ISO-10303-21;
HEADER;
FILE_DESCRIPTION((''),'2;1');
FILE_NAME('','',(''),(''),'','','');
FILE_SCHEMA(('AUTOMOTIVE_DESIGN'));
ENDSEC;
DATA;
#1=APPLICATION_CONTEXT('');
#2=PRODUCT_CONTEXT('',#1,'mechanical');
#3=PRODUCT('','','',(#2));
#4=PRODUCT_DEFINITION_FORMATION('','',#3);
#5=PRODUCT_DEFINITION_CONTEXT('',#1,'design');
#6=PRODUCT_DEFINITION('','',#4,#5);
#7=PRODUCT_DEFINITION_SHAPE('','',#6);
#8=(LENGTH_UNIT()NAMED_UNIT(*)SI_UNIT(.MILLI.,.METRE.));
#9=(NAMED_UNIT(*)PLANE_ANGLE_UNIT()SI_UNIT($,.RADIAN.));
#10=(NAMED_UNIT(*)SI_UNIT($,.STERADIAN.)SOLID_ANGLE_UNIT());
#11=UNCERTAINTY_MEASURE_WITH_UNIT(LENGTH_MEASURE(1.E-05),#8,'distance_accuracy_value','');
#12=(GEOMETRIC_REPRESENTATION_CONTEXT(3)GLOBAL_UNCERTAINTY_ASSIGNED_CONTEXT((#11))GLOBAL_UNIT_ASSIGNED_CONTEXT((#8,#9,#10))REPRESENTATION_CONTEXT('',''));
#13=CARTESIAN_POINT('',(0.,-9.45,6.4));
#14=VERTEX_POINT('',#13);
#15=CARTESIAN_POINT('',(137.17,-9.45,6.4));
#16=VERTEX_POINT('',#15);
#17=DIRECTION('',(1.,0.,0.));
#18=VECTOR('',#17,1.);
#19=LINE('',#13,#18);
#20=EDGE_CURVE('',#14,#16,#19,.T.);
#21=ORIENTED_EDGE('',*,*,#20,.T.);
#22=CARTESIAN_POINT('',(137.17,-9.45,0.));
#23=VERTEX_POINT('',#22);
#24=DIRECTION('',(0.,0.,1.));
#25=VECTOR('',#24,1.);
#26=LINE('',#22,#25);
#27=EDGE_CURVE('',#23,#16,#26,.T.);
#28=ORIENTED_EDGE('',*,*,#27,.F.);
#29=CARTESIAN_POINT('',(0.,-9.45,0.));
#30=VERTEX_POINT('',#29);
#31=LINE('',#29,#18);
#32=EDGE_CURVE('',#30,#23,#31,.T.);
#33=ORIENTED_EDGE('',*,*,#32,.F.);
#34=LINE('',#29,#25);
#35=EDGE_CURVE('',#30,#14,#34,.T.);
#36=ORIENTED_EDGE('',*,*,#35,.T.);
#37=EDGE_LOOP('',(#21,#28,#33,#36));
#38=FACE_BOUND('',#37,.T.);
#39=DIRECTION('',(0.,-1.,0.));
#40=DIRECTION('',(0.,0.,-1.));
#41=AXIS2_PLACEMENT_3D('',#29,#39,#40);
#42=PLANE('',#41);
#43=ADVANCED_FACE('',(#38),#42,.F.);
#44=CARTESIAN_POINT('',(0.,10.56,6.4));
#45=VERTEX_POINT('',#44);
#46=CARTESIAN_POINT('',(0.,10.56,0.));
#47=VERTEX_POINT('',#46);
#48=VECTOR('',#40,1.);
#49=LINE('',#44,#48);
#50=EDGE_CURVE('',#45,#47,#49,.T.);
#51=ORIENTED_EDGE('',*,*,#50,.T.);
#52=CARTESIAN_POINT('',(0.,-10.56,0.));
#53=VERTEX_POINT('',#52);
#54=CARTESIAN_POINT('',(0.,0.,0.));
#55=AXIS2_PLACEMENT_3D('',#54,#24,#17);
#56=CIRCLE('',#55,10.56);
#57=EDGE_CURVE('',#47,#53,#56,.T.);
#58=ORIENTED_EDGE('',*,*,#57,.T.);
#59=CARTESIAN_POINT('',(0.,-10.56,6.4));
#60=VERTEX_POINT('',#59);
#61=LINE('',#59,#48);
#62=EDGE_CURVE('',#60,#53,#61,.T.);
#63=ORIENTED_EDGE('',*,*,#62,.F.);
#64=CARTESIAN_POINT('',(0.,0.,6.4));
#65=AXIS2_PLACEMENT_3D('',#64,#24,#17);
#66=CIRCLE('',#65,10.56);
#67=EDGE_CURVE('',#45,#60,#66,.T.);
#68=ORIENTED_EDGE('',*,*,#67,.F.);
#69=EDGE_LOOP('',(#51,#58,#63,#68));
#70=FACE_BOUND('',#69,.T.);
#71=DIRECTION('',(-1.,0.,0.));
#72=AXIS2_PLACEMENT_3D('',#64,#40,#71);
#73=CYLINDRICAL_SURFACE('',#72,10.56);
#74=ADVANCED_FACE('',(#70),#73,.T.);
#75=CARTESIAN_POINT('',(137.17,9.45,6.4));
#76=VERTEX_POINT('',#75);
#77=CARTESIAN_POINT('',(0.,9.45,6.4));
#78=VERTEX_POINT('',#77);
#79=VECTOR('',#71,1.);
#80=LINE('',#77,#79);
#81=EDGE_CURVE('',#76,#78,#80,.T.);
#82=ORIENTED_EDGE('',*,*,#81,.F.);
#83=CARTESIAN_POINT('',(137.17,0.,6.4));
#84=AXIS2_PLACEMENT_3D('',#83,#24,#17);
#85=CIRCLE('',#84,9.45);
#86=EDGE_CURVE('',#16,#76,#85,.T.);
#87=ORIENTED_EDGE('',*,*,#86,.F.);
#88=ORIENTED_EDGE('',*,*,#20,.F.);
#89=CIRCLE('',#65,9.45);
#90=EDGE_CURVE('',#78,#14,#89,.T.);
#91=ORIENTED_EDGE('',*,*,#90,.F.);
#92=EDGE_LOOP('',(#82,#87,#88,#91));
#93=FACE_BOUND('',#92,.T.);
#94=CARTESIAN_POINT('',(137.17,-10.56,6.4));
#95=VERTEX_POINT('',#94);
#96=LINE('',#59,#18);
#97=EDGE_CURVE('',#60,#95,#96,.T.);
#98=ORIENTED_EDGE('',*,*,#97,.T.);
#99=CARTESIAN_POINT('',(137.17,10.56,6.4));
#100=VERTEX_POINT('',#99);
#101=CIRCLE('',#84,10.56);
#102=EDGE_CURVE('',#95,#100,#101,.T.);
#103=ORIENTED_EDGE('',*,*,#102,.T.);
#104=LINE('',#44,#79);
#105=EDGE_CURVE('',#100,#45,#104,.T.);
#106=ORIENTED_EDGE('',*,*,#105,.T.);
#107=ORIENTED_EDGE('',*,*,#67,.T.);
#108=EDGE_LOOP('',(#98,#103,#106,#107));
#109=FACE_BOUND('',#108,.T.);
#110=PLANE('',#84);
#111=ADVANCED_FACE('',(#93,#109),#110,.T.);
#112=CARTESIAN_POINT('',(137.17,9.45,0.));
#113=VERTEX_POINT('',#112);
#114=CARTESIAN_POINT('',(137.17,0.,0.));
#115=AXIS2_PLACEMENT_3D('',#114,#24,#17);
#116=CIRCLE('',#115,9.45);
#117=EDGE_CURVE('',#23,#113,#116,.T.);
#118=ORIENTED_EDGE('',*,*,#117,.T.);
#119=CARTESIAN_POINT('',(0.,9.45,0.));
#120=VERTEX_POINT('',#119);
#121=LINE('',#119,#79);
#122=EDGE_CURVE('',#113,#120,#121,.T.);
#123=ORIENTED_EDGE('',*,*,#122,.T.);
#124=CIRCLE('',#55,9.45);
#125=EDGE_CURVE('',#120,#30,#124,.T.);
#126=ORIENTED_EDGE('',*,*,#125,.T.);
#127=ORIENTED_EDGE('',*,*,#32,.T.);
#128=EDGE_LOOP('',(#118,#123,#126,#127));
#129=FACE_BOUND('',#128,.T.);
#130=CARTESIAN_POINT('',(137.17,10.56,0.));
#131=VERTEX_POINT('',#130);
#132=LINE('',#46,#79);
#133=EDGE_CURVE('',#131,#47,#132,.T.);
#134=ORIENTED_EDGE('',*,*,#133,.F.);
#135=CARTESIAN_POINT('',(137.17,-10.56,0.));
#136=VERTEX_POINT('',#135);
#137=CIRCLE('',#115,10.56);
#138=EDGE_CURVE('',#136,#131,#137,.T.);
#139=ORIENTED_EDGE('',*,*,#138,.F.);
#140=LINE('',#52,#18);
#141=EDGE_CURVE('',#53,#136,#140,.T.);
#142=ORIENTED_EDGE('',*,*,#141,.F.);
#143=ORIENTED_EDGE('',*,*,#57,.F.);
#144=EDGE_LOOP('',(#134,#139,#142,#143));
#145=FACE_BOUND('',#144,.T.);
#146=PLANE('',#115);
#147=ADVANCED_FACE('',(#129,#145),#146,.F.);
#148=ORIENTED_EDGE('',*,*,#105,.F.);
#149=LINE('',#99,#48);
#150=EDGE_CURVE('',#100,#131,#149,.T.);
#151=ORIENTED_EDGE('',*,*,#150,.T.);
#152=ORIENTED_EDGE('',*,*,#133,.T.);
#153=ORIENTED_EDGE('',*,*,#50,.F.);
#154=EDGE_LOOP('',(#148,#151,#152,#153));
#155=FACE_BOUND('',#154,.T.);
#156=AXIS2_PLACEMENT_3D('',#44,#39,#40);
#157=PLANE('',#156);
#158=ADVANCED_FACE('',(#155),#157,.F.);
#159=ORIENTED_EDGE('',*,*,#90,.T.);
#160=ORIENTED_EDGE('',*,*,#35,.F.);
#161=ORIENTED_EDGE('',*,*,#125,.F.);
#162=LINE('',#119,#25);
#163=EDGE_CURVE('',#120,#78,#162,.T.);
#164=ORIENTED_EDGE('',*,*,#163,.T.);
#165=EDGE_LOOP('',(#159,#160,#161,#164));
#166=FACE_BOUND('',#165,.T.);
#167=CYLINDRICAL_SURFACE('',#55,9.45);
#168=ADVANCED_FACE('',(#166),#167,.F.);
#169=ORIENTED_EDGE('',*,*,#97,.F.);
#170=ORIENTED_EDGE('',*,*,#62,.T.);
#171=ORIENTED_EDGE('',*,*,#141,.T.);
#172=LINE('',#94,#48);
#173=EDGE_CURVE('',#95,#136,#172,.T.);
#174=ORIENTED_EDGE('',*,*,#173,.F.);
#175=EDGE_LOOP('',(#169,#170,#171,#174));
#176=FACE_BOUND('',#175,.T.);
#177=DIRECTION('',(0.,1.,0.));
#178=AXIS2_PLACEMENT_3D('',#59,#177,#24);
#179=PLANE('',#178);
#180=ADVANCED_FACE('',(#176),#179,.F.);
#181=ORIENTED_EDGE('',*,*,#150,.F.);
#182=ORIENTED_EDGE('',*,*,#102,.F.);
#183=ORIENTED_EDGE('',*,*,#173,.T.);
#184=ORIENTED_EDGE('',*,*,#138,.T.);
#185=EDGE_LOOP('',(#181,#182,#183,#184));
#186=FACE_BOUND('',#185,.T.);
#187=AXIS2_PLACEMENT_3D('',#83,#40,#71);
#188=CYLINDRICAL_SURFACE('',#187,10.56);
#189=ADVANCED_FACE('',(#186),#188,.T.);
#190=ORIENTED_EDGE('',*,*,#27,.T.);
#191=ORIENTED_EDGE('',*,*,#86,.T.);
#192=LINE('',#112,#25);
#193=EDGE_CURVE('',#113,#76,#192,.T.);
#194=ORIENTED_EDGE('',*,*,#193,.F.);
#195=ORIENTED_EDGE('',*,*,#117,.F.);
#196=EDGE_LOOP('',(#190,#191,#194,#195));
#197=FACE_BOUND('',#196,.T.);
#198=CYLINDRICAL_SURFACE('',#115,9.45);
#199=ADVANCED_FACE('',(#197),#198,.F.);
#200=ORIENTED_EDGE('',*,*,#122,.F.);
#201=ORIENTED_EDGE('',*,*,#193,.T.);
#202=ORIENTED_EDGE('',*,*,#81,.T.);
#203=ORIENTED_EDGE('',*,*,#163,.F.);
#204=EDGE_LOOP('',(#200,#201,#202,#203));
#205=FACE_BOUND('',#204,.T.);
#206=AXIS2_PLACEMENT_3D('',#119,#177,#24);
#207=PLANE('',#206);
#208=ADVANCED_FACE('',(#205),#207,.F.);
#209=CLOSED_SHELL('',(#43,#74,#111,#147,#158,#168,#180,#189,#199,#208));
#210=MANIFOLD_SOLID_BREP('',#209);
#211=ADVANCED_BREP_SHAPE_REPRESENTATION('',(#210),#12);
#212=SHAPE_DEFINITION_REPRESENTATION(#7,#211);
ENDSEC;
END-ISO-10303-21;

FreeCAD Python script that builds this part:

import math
import FreeCAD as App
import Part
import Sketcher

V = App.Vector
Q = App.Units.Quantity

doc = App.newDocument("Part")
body = doc.addObject("PartDesign::Body", "Body")

# Sketch on XY plane
sketch1 = body.newObject("Sketcher::SketchObject", "Sketch")
sketch1.AttachmentSupport = (doc.getObject("XY_Plane"), [""])
sketch1.MapMode = "FlatFace"
sketch1.addGeometry([
    Part.LineSegment(V(137.17, 10.56, 0), V(0, 10.56, 0)),
    Part.ArcOfCircle(Part.Circle(V(0, 0, 0), V(0, 0, 1), 10.56), math.radians(90), math.radians(270)),
    Part.LineSegment(V(0, -10.56, 0), V(137.17, -10.56, 0)),
    Part.ArcOfCircle(Part.Circle(V(137.17, 0, 0), V(0, 0, 1), 10.56), math.radians(-90), math.radians(90)),
], False)
sketch1.addConstraint([
    Sketcher.Constraint("Tangent", 0, 2, 1, 1),
    Sketcher.Constraint("Tangent", 1, 2, 2, 1),
    Sketcher.Constraint("Tangent", 2, 2, 3, 1),
    Sketcher.Constraint("Tangent", 3, 2, 0, 1),
    Sketcher.Constraint("Horizontal", 0),
    Sketcher.Constraint("Horizontal", 2),
    Sketcher.Constraint("Coincident", 1, 3, -1, 1),
    Sketcher.Constraint("Radius", 1, Q("10.56 mm")),
    Sketcher.Constraint("DistanceX", 0, 2, 0, 1, Q("137.17 mm")),
])
pad1 = body.newObject("PartDesign::Pad", "Pad")
pad1.Profile = sketch1
pad1.Length = 6.4

# Sketch on XY plane
sketch2 = body.newObject("Sketcher::SketchObject", "Sketch001")
sketch2.AttachmentSupport = (doc.getObject("XY_Plane"), [""])
sketch2.MapMode = "FlatFace"
sketch2.AttachmentOffset = App.Placement(V(0, 0, 6.4), App.Rotation())
sketch2.addGeometry([
    Part.LineSegment(V(137.17, 9.45, 0), V(0, 9.45, 0)),
    Part.ArcOfCircle(Part.Circle(V(0, 0, 0), V(0, 0, 1), 9.45), math.radians(90), math.radians(270)),
    Part.LineSegment(V(0, -9.45, 0), V(137.17, -9.45, 0)),
    Part.ArcOfCircle(Part.Circle(V(137.17, 0, 0), V(0, 0, 1), 9.45), math.radians(-90), math.radians(90)),
], False)
sketch2.addConstraint([
    Sketcher.Constraint("Tangent", 0, 2, 1, 1),
    Sketcher.Constraint("Tangent", 1, 2, 2, 1),
    Sketcher.Constraint("Tangent", 2, 2, 3, 1),
    Sketcher.Constraint("Tangent", 3, 2, 0, 1),
    Sketcher.Constraint("Horizontal", 0),
    Sketcher.Constraint("Horizontal", 2),
    Sketcher.Constraint("Coincident", 1, 3, -1, 1),
    Sketcher.Constraint("Radius", 1, Q("9.45 mm")),
    Sketcher.Constraint("DistanceX", 0, 2, 0, 1, Q("137.17 mm")),
])
pocket1 = body.newObject("PartDesign::Pocket", "Pocket")
pocket1.Profile = sketch2
pocket1.Type = "ThroughAll"

doc.recompute()
